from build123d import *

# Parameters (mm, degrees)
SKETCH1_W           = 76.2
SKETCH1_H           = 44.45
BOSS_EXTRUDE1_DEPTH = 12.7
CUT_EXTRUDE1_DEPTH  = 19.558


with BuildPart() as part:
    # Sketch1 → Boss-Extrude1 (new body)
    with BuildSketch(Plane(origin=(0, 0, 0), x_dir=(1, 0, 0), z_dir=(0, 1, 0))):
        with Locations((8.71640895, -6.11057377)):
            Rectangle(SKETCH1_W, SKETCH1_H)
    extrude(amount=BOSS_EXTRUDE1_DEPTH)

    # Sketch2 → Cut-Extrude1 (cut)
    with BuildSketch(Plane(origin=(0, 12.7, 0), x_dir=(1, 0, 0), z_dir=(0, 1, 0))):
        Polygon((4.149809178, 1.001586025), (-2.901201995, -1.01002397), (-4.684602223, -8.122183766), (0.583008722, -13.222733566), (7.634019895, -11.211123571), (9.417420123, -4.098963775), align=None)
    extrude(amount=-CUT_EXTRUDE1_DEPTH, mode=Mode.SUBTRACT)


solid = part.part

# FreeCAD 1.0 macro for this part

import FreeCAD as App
import Part
import Sketcher

V = App.Vector
Q = App.Units.Quantity


def add_polygon(sketch, points):
    """Adds a closed chain of lines whose ends are joined by coincident constraints."""
    first, n = sketch.GeometryCount, len(points)
    for a, b in zip(points, points[1:] + points[:1]):
        sketch.addGeometry(Part.LineSegment(App.Vector(*a, 0), App.Vector(*b, 0)), False)
    for i in range(n):
        sketch.addConstraint(Sketcher.Constraint("Coincident", first + i, 2, first + (i + 1) % n, 1))

doc = App.newDocument("Part")
body = doc.addObject("PartDesign::Body", "Body")

# Sketch on XZ plane
sketch1 = doc.addObject("Sketcher::SketchObject", "Sketch")
body.addObject(sketch1)
sketch1.AttachmentSupport = (doc.XZ_Plane, [""])
sketch1.MapMode = "FlatFace"
add_polygon(sketch1, [(-29, -16), (-29, 28), (47, 28), (47, -16)])  # lines 0-3
sketch1.addConstraint([
    Sketcher.Constraint("Vertical", 0),
    Sketcher.Constraint("Horizontal", 1),
    Sketcher.Constraint("Vertical", 2),
    Sketcher.Constraint("Horizontal", 3),
    Sketcher.Constraint("DistanceX", 1, 1, 1, 2, Q("3 in")),
    Sketcher.Constraint("DistanceY", 0, 1, 0, 2, Q("1.75 in")),
    Sketcher.Constraint("DistanceX", 0, 2, -1, 1, 29.383591),
    Sketcher.Constraint("DistanceY", -1, 1, 0, 2, 28.335574),
])
pad1 = doc.addObject("PartDesign::Pad", "Pad")
body.addObject(pad1)
pad1.Profile = sketch1
pad1.Length = Q("0.5 in")
pad1.Reversed = True

# Sketch on XZ plane
sketch2 = doc.addObject("Sketcher::SketchObject", "Sketch001")
body.addObject(sketch2)
sketch2.AttachmentSupport = (doc.XZ_Plane, [""])
sketch2.MapMode = "FlatFace"
sketch2.AttachmentOffset = App.Placement(V(0, 0, -0.5 * 25.4), App.Rotation())
add_polygon(sketch2, [(4, -1), (-3, 1), (-5, 8), (1, 13), (8, 11), (9, 4)])  # lines 0-5
sketch2.addConstraint([
    Sketcher.Constraint("Parallel", 0, 3),
    Sketcher.Constraint("Parallel", 1, 4),
    Sketcher.Constraint("Parallel", 2, 5),
    Sketcher.Constraint("Equal", 0, 1),
    Sketcher.Constraint("Equal", 1, 2),
    Sketcher.Constraint("Equal", 2, 3),
    Sketcher.Constraint("DistanceX", 0, 2, -1, 1, 2.901202),
    Sketcher.Constraint("DistanceX", 1, 2, 0, 2, 1.7834),
    Sketcher.Constraint("DistanceY", 0, 2, 3, 2, 10.2011),
    Sketcher.Constraint("DistanceX", 2, 2, 5, 2, 3.5668),
    Sketcher.Constraint("Distance", 0, 7.332348),
    Sketcher.Constraint("DistanceY", -1, 1, 0, 2, 1.010024),
])
pocket1 = doc.addObject("PartDesign::Pocket", "Pocket")
body.addObject(pocket1)
pocket1.Profile = sketch2
pocket1.Length = Q("0.77 in")
pocket1.Reversed = True

doc.recompute()
